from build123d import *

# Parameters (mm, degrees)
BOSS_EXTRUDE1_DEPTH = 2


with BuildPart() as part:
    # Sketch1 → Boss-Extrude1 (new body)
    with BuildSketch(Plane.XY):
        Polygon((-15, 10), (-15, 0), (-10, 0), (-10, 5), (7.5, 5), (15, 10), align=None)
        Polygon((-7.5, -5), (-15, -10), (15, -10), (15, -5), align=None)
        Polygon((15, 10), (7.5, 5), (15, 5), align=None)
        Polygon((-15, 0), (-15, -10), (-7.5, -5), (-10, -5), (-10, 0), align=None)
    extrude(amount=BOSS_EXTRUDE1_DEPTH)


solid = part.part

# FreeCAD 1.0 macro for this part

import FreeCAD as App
import Part
import Sketcher
from FreeCAD import Vector

doc = App.newDocument("Part")
params = doc.addObject("Spreadsheet::Sheet", "Params")
for row, (alias, value) in enumerate([
    ("sketch1_width", "30 mm"),
    ("sketch1_width2", "25 mm"),
    ("sketch1_height", "20 mm"),
    ("sketch1_height2", "5 mm"),
    ("pad1_length", "2 mm"),
], start=1):
    params.set(f"A{row}", alias)
    params.set(f"B{row}", "=" + value)
    params.setAlias(f"B{row}", alias)

body = doc.addObject("PartDesign::Body", "Body")

# Sketch on XY plane
sketch1 = body.newObject("Sketcher::SketchObject", "Sketch")
sketch1.AttachmentSupport = (doc.getObject("XY_Plane"), [""])
sketch1.MapMode = "FlatFace"
sketch1.addGeometry([
    Part.LineSegment(Vector(-15, 10, 0), Vector(-15, -10, 0)),  # 0
    Part.LineSegment(Vector(-15, -10, 0), Vector(15, -10, 0)),  # 1
    Part.LineSegment(Vector(15, -10, 0), Vector(15, -5, 0)),  # 2
    Part.LineSegment(Vector(15, -5, 0), Vector(-10, -5, 0)),  # 3
    Part.LineSegment(Vector(-10, -5, 0), Vector(-10, 5, 0)),  # 4
    Part.LineSegment(Vector(-10, 5, 0), Vector(15, 5, 0)),  # 5
    Part.LineSegment(Vector(15, 5, 0), Vector(15, 10, 0)),  # 6
    Part.LineSegment(Vector(15, 10, 0), Vector(-15, 10, 0)),  # 7
], False)
sketch1.addConstraint([
    Sketcher.Constraint("Coincident", 0, 2, 1, 1),
    Sketcher.Constraint("Coincident", 1, 2, 2, 1),
    Sketcher.Constraint("Coincident", 2, 2, 3, 1),
    Sketcher.Constraint("Coincident", 3, 2, 4, 1),
    Sketcher.Constraint("Coincident", 4, 2, 5, 1),
    Sketcher.Constraint("Coincident", 5, 2, 6, 1),
    Sketcher.Constraint("Coincident", 6, 2, 7, 1),
    Sketcher.Constraint("Coincident", 7, 2, 0, 1),
    Sketcher.Constraint("Vertical", 0),
    Sketcher.Constraint("Horizontal", 1),
    Sketcher.Constraint("Vertical", 2),
    Sketcher.Constraint("Horizontal", 3),
    Sketcher.Constraint("Vertical", 4),
    Sketcher.Constraint("Horizontal", 5),
    Sketcher.Constraint("Vertical", 6),
    Sketcher.Constraint("Horizontal", 7),
    Sketcher.Constraint("Symmetric", 0, 2, 6, 2, -1, 1),
    Sketcher.Constraint("Symmetric", 2, 2, 5, 2, -1),
    Sketcher.Constraint("DistanceX", 1, 1, 1, 2, 30.0),
    Sketcher.Constraint("DistanceX", 3, 2, 3, 1, 25.0),
    Sketcher.Constraint("DistanceY", 0, 2, 0, 1, 20.0),
    Sketcher.Constraint("DistanceY", 2, 1, 2, 2, 5.0),
])
sketch1.setExpression("Constraints[18]", "Params.sketch1_width")
sketch1.setExpression("Constraints[19]", "Params.sketch1_width2")
sketch1.setExpression("Constraints[20]", "Params.sketch1_height")
sketch1.setExpression("Constraints[21]", "Params.sketch1_height2")
pad1 = body.newObject("PartDesign::Pad", "Pad")
pad1.Profile = sketch1
pad1.setExpression("Length", "Params.pad1_length")

doc.recompute()
